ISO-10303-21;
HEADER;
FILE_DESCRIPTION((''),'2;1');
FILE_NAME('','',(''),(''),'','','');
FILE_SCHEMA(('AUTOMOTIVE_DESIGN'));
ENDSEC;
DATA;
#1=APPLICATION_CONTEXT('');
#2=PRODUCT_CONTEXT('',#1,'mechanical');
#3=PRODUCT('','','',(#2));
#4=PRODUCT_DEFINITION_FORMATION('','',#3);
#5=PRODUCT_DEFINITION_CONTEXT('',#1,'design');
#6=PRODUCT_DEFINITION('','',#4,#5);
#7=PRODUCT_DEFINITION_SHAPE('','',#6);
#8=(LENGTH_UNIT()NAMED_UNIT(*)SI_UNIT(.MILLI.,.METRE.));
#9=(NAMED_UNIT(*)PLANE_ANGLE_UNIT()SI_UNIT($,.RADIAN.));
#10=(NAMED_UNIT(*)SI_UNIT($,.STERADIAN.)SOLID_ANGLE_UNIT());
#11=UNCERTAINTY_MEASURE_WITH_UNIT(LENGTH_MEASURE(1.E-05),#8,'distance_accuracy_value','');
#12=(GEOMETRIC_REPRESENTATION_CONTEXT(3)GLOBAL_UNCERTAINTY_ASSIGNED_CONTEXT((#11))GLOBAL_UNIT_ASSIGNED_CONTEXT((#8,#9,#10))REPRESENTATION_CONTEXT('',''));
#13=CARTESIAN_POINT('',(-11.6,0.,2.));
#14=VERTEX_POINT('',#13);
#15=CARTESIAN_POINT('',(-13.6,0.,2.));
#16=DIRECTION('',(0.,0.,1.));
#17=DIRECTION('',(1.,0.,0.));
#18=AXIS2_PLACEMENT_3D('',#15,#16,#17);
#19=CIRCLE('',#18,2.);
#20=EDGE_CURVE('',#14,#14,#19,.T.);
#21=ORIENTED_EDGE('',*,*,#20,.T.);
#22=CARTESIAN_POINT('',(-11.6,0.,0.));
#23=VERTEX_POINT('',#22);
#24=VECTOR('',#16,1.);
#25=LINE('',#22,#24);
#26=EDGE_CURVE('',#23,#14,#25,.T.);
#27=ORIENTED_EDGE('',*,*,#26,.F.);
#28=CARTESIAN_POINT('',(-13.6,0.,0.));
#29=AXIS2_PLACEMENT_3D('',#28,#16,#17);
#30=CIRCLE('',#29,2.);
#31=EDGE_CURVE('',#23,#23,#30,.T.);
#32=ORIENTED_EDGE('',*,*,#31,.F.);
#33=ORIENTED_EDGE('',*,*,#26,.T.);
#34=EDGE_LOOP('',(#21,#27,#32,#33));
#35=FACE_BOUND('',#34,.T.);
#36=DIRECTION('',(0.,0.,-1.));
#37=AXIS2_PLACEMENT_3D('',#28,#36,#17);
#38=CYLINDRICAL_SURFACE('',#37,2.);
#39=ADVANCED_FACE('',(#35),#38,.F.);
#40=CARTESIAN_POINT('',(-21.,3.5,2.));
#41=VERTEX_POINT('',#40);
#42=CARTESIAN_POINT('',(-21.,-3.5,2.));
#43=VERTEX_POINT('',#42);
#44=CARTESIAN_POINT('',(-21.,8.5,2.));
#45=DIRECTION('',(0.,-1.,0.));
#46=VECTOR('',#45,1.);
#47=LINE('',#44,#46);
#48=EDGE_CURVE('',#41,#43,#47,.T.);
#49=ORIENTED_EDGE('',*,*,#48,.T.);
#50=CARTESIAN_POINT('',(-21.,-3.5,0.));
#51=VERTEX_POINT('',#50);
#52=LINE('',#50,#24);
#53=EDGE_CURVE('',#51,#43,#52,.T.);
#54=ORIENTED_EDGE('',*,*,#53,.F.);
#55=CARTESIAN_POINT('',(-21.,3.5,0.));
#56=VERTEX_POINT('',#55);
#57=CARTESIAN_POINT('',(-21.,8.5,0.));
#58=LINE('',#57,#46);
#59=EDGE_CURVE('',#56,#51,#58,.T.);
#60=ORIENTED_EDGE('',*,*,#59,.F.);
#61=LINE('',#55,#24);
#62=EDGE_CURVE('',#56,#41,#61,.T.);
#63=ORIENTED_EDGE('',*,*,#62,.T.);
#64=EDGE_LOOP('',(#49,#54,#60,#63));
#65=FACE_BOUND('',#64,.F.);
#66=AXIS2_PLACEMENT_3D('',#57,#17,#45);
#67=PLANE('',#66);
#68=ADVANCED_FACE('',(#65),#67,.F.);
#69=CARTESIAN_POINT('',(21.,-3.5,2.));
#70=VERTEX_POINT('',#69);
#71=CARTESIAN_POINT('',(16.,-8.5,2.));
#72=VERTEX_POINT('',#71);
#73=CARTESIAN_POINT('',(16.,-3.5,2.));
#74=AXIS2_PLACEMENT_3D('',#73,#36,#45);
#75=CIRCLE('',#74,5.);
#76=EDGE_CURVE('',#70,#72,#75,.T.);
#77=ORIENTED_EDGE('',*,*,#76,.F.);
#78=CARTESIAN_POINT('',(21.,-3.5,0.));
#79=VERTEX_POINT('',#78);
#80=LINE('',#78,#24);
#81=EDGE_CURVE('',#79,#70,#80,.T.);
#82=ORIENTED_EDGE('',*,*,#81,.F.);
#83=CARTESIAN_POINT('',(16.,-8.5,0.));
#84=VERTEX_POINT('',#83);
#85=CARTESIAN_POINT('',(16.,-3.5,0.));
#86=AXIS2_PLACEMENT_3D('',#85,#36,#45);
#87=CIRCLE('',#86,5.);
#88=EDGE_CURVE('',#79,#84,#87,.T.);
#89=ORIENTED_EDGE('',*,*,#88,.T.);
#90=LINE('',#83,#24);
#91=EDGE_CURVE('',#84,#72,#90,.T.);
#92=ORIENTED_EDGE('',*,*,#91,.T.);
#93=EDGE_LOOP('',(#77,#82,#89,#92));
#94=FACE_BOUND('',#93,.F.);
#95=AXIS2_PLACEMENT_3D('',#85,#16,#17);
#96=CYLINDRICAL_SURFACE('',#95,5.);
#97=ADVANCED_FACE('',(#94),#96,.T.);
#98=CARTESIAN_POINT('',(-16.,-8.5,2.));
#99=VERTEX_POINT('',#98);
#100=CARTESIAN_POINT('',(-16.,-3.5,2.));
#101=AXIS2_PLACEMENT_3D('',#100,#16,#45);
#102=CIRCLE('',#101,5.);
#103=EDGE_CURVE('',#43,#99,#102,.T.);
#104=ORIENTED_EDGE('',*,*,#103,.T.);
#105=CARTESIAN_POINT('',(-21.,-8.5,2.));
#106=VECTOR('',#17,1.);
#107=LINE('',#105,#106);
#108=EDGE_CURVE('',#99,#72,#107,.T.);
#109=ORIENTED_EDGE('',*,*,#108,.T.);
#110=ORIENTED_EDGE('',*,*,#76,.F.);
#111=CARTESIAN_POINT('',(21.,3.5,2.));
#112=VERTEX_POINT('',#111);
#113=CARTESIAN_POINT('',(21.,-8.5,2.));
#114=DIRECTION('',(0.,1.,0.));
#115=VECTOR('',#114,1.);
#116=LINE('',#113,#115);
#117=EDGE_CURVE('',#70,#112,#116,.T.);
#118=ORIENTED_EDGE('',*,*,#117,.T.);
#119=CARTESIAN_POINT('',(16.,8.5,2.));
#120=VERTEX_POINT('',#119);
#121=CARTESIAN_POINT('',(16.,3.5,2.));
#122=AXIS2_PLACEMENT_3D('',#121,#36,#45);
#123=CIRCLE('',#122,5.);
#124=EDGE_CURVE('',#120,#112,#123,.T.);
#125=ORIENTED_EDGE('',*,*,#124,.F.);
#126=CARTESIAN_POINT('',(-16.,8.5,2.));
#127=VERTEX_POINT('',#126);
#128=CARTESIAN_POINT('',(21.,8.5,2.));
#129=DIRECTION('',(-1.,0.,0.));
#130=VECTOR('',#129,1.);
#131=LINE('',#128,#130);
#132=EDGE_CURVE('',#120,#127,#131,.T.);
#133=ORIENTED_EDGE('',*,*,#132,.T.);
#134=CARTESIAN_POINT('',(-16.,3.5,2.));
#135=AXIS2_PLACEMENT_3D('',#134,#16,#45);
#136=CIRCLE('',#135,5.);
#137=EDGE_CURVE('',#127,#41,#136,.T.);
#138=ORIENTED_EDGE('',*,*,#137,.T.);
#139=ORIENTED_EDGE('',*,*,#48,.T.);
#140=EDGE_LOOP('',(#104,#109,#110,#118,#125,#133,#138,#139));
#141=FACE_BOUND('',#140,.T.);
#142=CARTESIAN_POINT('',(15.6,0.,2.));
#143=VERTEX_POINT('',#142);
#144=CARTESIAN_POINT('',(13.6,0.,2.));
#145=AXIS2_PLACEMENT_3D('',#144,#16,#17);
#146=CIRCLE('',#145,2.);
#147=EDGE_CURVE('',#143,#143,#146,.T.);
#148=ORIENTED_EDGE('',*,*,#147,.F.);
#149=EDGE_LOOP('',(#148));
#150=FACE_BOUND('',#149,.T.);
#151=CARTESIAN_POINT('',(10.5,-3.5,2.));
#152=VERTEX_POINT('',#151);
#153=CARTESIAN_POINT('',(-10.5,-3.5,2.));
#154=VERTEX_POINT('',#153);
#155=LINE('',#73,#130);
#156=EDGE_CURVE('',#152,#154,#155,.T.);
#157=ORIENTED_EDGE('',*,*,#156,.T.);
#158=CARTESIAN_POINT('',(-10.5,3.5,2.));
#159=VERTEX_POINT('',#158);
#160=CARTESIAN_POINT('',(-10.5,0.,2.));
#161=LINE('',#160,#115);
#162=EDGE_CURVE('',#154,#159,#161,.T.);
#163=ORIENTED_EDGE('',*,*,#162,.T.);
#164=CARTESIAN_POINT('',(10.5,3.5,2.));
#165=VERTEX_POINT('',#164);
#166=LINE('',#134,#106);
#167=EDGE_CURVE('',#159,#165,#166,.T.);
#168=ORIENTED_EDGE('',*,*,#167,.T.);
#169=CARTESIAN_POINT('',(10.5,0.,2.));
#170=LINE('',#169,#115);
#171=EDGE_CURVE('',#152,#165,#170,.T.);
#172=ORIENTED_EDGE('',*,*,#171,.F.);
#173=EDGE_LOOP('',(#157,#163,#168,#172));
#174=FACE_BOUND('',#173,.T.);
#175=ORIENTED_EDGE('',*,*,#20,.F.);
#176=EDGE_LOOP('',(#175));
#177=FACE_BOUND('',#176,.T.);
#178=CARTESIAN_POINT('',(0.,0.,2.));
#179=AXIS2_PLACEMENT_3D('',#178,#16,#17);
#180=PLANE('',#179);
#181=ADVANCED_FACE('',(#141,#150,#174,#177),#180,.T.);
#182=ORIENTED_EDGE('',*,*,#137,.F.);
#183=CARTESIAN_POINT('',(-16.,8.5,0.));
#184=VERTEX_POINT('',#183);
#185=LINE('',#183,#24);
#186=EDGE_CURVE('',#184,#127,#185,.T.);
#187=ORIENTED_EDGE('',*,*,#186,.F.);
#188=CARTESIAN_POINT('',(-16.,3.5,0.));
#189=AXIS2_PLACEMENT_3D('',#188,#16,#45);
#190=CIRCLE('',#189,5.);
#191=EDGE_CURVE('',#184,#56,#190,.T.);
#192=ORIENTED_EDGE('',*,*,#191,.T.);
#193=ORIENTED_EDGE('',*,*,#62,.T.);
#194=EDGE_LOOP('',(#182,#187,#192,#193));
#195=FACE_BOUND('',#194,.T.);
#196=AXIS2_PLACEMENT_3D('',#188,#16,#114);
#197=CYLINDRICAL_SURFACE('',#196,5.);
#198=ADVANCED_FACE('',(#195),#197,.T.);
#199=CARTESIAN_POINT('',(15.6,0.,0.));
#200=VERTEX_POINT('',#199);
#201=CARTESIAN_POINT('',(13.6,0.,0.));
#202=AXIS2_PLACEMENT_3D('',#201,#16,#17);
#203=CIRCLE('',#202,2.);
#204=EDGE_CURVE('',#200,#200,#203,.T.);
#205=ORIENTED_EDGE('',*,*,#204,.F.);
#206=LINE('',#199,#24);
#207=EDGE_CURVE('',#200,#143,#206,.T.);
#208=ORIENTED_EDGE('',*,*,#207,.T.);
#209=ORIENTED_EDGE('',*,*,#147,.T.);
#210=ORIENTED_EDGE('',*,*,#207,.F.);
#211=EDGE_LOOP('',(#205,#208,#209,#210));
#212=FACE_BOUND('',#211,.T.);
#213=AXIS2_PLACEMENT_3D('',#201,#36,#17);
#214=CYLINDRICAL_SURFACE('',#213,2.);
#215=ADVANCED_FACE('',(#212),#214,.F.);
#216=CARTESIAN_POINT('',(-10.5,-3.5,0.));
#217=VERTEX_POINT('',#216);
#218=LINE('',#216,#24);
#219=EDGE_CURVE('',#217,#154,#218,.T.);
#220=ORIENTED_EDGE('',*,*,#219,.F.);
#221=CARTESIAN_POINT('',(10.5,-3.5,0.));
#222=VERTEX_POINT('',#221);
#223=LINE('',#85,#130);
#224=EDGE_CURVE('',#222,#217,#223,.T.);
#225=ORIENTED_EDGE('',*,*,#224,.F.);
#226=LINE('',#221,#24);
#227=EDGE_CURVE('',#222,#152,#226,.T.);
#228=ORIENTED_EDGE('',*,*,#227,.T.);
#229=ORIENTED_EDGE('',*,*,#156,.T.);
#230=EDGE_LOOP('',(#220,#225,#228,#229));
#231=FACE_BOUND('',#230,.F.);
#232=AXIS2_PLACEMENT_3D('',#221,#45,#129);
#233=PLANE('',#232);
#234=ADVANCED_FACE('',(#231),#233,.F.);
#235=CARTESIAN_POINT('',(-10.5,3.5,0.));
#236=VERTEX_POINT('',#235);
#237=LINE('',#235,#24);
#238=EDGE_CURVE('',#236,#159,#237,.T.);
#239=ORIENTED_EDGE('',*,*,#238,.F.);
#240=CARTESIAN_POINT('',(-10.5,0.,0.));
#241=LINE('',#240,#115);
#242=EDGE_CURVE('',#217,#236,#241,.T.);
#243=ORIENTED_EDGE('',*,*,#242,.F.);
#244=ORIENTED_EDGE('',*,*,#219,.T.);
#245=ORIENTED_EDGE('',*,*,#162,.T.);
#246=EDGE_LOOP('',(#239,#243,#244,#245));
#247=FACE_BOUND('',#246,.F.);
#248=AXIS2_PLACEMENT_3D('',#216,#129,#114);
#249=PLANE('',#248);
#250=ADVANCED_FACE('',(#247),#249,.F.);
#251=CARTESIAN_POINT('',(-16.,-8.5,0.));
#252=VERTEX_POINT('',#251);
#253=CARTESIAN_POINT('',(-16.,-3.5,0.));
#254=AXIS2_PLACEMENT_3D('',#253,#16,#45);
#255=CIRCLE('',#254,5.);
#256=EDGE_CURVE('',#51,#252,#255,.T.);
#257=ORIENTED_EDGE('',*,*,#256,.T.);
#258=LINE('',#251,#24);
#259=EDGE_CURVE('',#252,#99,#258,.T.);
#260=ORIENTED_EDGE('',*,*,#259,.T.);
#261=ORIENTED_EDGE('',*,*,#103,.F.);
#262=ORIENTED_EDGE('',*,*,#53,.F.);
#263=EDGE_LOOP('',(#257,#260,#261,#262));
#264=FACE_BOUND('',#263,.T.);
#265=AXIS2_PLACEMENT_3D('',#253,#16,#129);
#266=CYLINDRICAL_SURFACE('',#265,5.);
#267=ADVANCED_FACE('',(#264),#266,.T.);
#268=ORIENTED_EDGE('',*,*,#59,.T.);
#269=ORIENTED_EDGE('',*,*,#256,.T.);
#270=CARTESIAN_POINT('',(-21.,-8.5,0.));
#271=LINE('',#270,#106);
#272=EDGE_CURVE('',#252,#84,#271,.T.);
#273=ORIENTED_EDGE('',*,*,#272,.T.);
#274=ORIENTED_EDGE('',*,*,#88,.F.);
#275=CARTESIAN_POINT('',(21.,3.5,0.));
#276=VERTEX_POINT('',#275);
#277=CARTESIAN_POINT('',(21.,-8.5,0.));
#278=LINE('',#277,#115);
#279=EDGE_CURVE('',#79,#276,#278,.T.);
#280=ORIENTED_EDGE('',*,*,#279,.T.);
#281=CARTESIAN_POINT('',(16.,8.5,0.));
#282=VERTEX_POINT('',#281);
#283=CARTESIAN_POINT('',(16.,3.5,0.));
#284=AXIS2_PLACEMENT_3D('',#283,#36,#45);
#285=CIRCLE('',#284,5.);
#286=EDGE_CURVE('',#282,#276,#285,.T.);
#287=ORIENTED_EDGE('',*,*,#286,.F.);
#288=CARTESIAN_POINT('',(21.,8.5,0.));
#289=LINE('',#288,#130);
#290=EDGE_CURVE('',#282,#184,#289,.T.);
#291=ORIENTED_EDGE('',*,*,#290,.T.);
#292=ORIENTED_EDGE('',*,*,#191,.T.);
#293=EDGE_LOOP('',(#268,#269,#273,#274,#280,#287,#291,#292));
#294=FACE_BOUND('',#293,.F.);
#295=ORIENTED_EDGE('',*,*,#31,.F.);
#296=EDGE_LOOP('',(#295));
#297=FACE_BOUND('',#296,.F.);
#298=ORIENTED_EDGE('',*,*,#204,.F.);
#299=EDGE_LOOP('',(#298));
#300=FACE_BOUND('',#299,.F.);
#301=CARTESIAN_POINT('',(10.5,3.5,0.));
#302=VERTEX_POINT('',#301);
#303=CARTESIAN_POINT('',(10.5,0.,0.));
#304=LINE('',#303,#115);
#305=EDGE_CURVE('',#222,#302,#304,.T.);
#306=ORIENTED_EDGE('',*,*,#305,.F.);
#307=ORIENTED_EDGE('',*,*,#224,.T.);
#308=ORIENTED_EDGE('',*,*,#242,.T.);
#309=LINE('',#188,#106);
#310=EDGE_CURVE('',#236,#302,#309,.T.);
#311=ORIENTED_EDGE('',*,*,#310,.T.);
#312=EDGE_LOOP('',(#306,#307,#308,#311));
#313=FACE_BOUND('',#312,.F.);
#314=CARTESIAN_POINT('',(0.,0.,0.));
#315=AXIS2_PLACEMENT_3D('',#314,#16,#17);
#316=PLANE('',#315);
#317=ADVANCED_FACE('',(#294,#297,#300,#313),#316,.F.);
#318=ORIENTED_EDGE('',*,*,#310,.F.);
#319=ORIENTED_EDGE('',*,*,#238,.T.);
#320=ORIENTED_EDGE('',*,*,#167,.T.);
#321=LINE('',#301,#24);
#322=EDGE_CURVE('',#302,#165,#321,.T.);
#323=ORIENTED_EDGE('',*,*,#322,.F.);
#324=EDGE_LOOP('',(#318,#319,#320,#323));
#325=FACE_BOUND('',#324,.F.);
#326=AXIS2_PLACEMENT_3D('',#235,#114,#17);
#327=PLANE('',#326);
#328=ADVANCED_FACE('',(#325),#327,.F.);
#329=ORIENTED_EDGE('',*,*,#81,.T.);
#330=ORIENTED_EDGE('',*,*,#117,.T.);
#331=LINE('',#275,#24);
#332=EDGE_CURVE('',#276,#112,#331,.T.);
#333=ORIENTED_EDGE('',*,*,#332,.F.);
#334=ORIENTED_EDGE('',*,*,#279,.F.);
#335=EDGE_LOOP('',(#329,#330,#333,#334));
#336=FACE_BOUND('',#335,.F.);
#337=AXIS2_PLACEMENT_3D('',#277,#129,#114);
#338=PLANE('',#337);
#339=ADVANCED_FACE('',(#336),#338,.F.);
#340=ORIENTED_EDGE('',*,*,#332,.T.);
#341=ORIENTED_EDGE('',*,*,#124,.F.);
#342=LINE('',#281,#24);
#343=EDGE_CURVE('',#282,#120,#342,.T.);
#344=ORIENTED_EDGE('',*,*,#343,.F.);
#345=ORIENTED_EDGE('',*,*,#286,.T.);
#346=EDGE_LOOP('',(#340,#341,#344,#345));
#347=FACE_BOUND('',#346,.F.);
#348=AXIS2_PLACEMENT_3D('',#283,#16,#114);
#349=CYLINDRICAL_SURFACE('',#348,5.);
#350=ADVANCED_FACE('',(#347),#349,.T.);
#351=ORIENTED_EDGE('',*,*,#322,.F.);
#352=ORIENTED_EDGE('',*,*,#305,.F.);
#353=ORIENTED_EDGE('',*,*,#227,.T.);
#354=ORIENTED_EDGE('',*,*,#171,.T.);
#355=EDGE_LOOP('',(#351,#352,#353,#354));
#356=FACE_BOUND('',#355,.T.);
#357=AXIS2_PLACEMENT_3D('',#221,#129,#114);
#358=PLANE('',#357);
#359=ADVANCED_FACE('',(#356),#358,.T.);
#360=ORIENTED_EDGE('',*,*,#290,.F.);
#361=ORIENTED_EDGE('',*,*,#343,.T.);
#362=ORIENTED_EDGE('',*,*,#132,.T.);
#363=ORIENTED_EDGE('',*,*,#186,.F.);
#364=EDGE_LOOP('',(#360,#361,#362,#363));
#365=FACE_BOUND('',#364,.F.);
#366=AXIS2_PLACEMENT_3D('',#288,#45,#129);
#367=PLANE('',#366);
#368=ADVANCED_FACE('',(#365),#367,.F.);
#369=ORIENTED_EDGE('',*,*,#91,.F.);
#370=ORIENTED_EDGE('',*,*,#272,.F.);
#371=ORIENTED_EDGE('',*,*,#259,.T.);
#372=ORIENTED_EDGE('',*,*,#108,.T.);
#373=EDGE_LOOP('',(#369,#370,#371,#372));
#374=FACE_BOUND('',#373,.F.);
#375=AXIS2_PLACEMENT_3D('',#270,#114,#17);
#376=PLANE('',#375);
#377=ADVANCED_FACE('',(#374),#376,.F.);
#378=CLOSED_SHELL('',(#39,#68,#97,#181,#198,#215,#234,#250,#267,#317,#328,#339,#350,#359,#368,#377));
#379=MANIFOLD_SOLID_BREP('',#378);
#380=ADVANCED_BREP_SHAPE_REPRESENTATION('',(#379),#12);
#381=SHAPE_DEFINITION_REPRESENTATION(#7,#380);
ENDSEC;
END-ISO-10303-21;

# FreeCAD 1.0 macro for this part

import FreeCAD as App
import Part
import Sketcher

V = App.Vector
Q = App.Units.Quantity


def edges_at(feature, points):
    """Names of the edges that pass closest to the given points."""
    edges = feature.Shape.Edges
    near = lambda p: min(range(len(edges)), key=lambda i: edges[i].distToShape(Part.Vertex(*p))[0])
    return sorted({f"Edge{near(p) + 1}" for p in points})


def add_polygon(sketch, points):
    """Adds a closed chain of lines whose ends are joined by coincident constraints."""
    first, n = sketch.GeometryCount, len(points)
    for a, b in zip(points, points[1:] + points[:1]):
        sketch.addGeometry(Part.LineSegment(App.Vector(*a, 0), App.Vector(*b, 0)), False)
    for i in range(n):
        sketch.addConstraint(Sketcher.Constraint("Coincident", first + i, 2, first + (i + 1) % n, 1))

doc = App.newDocument("Part")
params = doc.addObject("Spreadsheet::Sheet", "Params")
for row, (alias, value) in enumerate([
    ("sketch1_diameter", "4 mm"),
    ("sketch1_width", "42 mm"),
    ("sketch1_width2", "21 mm"),
    ("sketch1_height", "17 mm"),
    ("sketch1_height2", "7 mm"),
    ("pad1_length", "2 mm"),
    ("fillet_radius", "5 mm"),
], start=1):
    params.set(f"A{row}", alias)
    params.set(f"B{row}", "=" + value)
    params.setAlias(f"B{row}", alias)

body = doc.addObject("PartDesign::Body", "Body")

sketch1 = body.newObject("Sketcher::SketchObject", "Sketch")
sketch1.AttachmentSupport = (doc.getObject("XY_Plane"), [""])
sketch1.MapMode = "FlatFace"
add_polygon(sketch1, [(21, 8.5), (-21, 8.5), (-21, -8.5), (21, -8.5)])
sketch1.addGeometry(Part.Circle(V(-13.6, 0, 0), V(0, 0, 1), 2), False)
add_polygon(sketch1, [(-10.5, 3.5), (10.5, 3.5), (10.5, -3.5), (-10.5, -3.5)])
sketch1.addGeometry(Part.Circle(V(13.6, 0, 0), V(0, 0, 1), 2), False)
sketch1.addConstraint([
    Sketcher.Constraint("Horizontal", 0),
    Sketcher.Constraint("Vertical", 1),
    Sketcher.Constraint("Horizontal", 2),
    Sketcher.Constraint("Vertical", 3),
    Sketcher.Constraint("Horizontal", 5),
    Sketcher.Constraint("Vertical", 6),
    Sketcher.Constraint("Horizontal", 7),
    Sketcher.Constraint("Vertical", 8),
    Sketcher.Constraint("Equal", 4, 9),
    Sketcher.Constraint("Symmetric", 4, 3, 9, 3, -1, 1),
    Sketcher.Constraint("Symmetric", 0, 2, 2, 2, -1, 1),
    Sketcher.Constraint("Symmetric", 5, 2, 7, 2, -1, 1),
    Sketcher.Constraint("PointOnObject", 4, 3, -1),
    Sketcher.Constraint("Diameter", 4, Q("4 mm")),
    Sketcher.Constraint("DistanceX", 0, 2, 0, 1, Q("42 mm")),
    Sketcher.Constraint("DistanceX", 5, 1, 5, 2, Q("21 mm")),
    Sketcher.Constraint("DistanceY", 1, 2, 1, 1, Q("17 mm")),
    Sketcher.Constraint("DistanceY", 6, 2, 6, 1, Q("7 mm")),
    Sketcher.Constraint("DistanceX", 4, 3, -1, 1, Q("13.6 mm")),
])
sketch1.setExpression("Constraints[21]", "Params.sketch1_diameter")
sketch1.setExpression("Constraints[22]", "Params.sketch1_width")
sketch1.setExpression("Constraints[23]", "Params.sketch1_width2")
sketch1.setExpression("Constraints[24]", "Params.sketch1_height")
sketch1.setExpression("Constraints[25]", "Params.sketch1_height2")
pad1 = body.newObject("PartDesign::Pad", "Pad")
pad1.Profile = sketch1
pad1.setExpression("Length", "Params.pad1_length")
doc.recompute()

fillet = body.newObject("PartDesign::Fillet", "Fillet")
fillet.Base = (pad1, edges_at(pad1, [
    (-21, 8.5, 1),
    (-21, -8.5, 1),
    (21, -8.5, 1),
    (21, 8.5, 1),
]))
fillet.setExpression("Radius", "Params.fillet_radius")

doc.recompute()
